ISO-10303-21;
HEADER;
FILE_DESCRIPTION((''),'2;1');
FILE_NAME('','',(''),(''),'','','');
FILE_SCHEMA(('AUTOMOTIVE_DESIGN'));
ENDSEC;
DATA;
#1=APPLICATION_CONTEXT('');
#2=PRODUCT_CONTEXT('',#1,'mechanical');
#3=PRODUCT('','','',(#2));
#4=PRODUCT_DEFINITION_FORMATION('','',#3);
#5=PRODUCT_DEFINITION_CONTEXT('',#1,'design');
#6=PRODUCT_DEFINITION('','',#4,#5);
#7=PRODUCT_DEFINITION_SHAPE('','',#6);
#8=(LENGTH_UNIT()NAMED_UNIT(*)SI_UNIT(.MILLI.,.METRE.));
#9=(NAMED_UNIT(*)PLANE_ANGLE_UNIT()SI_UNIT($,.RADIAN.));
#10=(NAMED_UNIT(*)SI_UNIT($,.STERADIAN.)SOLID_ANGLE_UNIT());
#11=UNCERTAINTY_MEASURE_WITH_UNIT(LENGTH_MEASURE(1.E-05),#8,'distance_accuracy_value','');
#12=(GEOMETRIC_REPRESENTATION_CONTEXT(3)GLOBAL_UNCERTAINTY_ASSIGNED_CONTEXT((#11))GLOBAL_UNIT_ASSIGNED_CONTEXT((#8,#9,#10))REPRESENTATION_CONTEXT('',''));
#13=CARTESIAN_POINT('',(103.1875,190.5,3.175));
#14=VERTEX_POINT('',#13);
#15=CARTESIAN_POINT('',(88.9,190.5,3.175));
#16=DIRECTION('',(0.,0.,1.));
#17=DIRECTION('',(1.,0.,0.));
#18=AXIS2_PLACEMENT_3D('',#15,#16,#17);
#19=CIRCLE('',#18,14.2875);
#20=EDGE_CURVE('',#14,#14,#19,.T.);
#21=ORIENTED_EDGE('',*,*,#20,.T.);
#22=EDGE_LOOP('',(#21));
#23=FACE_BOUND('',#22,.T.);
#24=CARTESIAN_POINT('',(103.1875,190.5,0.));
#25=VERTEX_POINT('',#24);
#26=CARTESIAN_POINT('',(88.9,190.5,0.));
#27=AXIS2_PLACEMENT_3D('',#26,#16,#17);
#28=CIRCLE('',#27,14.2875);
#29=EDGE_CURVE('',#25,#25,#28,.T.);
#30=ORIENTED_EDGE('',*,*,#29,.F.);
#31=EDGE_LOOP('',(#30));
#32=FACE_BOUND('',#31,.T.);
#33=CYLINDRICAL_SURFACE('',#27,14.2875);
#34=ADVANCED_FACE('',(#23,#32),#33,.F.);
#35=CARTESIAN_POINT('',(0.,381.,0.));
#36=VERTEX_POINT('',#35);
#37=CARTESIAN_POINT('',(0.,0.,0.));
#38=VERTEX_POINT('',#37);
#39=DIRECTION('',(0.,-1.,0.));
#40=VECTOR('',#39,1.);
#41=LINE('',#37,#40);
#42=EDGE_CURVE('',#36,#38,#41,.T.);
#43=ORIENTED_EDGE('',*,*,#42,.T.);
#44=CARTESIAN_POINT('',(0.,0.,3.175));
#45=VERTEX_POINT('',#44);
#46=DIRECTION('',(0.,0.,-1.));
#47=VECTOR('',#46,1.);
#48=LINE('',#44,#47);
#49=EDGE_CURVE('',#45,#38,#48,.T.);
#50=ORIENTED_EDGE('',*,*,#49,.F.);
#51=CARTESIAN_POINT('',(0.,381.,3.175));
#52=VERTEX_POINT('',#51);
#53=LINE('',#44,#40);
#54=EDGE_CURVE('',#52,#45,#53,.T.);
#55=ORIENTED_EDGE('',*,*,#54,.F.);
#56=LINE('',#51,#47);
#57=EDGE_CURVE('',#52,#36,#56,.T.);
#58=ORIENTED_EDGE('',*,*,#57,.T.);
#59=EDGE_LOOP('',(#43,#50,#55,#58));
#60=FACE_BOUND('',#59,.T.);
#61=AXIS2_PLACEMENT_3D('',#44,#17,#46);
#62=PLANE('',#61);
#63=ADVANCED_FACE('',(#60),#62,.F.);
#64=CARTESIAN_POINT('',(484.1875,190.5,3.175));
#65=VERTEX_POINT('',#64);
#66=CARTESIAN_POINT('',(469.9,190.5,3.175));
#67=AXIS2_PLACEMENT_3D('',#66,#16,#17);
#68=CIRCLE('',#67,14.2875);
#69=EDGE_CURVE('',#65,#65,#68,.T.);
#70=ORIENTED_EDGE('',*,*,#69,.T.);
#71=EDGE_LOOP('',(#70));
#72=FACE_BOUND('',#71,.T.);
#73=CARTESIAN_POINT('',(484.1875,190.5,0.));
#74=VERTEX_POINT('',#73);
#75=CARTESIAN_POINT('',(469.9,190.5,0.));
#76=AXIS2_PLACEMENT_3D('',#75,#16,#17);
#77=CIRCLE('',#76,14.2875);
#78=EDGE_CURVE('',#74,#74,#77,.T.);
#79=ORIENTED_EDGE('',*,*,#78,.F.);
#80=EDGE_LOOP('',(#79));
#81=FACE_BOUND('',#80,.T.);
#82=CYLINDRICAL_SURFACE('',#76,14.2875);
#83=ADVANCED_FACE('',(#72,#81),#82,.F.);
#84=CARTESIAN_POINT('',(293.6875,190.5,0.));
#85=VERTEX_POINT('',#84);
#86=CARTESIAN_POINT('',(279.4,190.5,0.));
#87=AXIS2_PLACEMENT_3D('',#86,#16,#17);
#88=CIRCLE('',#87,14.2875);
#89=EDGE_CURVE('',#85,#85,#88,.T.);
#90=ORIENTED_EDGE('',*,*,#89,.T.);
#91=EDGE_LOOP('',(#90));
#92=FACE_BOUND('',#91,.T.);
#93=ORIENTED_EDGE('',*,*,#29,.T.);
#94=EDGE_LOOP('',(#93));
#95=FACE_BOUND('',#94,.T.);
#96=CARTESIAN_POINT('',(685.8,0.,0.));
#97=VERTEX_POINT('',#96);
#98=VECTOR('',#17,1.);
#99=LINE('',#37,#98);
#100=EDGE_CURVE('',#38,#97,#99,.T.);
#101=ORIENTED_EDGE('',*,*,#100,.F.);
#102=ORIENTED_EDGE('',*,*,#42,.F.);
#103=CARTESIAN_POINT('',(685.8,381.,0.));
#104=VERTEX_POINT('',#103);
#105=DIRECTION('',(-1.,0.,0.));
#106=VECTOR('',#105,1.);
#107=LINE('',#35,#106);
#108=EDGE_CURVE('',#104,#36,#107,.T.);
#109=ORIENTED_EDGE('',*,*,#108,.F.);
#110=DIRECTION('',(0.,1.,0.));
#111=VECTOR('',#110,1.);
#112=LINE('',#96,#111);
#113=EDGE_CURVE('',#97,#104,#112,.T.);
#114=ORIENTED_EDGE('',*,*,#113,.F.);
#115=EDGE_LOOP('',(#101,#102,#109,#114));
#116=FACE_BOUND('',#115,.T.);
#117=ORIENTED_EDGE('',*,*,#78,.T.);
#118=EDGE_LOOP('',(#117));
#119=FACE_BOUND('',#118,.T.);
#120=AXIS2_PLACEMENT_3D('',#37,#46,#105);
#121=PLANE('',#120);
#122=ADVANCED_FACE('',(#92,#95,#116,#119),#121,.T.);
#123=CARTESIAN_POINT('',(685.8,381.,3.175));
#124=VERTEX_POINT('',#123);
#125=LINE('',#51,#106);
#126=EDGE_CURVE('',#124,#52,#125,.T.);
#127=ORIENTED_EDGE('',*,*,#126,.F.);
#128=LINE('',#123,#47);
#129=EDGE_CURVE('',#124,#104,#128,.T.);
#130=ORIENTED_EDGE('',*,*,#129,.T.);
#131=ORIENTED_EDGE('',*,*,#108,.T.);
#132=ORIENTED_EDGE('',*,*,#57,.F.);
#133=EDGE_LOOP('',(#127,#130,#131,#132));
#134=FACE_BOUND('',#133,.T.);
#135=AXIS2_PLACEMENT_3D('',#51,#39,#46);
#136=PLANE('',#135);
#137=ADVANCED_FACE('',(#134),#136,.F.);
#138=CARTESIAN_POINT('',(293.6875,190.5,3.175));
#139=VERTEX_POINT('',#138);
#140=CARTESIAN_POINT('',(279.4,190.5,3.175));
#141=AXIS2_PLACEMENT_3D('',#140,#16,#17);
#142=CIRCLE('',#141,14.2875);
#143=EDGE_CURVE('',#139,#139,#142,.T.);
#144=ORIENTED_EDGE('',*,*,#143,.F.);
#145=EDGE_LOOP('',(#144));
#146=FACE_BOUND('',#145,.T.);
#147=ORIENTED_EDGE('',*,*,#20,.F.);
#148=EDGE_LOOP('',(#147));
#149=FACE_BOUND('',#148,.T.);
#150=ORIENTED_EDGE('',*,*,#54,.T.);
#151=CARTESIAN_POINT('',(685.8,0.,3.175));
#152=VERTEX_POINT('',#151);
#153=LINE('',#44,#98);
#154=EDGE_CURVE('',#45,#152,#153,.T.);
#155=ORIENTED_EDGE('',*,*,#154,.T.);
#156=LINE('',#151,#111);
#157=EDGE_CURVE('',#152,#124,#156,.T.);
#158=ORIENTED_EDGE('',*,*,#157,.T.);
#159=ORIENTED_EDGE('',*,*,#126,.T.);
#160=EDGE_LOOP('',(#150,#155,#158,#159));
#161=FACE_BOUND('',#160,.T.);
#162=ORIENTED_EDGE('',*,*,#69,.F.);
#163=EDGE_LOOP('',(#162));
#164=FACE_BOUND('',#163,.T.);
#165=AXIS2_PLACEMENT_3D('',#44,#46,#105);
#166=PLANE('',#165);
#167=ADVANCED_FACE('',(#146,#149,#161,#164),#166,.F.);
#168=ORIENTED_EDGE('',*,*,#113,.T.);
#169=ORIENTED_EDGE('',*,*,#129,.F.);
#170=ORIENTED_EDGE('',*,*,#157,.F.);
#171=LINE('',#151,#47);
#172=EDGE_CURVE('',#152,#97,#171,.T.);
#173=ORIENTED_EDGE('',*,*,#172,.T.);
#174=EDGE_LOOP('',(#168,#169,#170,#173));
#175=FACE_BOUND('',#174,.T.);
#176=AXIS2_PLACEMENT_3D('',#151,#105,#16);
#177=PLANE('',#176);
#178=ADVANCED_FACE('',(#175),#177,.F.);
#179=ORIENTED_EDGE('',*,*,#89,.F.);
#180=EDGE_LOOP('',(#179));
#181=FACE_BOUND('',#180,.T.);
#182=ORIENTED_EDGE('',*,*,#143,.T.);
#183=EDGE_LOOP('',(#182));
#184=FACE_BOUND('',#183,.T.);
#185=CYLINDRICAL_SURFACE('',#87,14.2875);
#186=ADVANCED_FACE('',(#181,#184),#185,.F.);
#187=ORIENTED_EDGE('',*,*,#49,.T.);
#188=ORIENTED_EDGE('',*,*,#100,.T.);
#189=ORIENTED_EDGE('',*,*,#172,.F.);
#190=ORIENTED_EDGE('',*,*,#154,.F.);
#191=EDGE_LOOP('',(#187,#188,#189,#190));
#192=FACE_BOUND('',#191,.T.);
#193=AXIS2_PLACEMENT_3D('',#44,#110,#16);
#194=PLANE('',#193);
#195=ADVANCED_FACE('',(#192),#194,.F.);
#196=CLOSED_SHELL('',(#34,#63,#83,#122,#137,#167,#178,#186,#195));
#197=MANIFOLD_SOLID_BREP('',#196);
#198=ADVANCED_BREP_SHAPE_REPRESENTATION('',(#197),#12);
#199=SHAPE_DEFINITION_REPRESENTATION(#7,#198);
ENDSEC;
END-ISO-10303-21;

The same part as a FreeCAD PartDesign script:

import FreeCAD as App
import Part
import Sketcher

V = App.Vector
Q = App.Units.Quantity


def add_polygon(sketch, points):
    """Adds a closed chain of lines whose ends are joined by coincident constraints."""
    first, n = sketch.GeometryCount, len(points)
    for a, b in zip(points, points[1:] + points[:1]):
        sketch.addGeometry(Part.LineSegment(App.Vector(*a, 0), App.Vector(*b, 0)), False)
    for i in range(n):
        sketch.addConstraint(Sketcher.Constraint("Coincident", first + i, 2, first + (i + 1) % n, 1))

doc = App.newDocument("Part")
params = doc.addObject("Spreadsheet::Sheet", "Params")
for row, (alias, value) in enumerate([
    ("sketch1_width", "27 in"),
    ("sketch1_height", "15 in"),
    ("pad1_length", "0.125 in"),
    ("sketch2_diameter", "1.125 in"),
], start=1):
    params.set(f"A{row}", alias)
    params.set(f"B{row}", "=" + value)
    params.setAlias(f"B{row}", alias)

body = doc.addObject("PartDesign::Body", "Body")

sketch1 = doc.addObject("Sketcher::SketchObject", "Sketch")
body.addObject(sketch1)
sketch1.AttachmentSupport = (doc.XY_Plane, [""])
sketch1.MapMode = "FlatFace"
add_polygon(sketch1, [(0, 381), (0, 0), (686, 0), (686, 381)])
sketch1.addConstraint([
    Sketcher.Constraint("Vertical", 0),
    Sketcher.Constraint("Horizontal", 1),
    Sketcher.Constraint("Vertical", 2),
    Sketcher.Constraint("Horizontal", 3),
    Sketcher.Constraint("Coincident", 0, 2, -1, 1),
    Sketcher.Constraint("DistanceX", 1, 1, 1, 2, Q("27 in")),
    Sketcher.Constraint("DistanceY", 0, 2, 0, 1, Q("15 in")),
])
sketch1.setExpression("Constraints[9]", "Params.sketch1_width")
sketch1.setExpression("Constraints[10]", "Params.sketch1_height")
pad1 = doc.addObject("PartDesign::Pad", "Pad")
body.addObject(pad1)
pad1.Profile = sketch1
pad1.setExpression("Length", "Params.pad1_length")

sketch2 = doc.addObject("Sketcher::SketchObject", "Sketch001")
body.addObject(sketch2)
sketch2.AttachmentSupport = (doc.XY_Plane, [""])
sketch2.MapMode = "FlatFace"
sketch2.AttachmentOffset = App.Placement(V(0, 0, 0.125 * 25.4), App.Rotation())
sketch2.addGeometry([
    Part.Circle(V(470, 190, 0), V(0, 0, 1), 14),
    Part.Circle(V(89, 190, 0), V(0, 0, 1), 14),
    Part.Circle(V(279, 190, 0), V(0, 0, 1), 14),
], False)
sketch2.addConstraint([
    Sketcher.Constraint("Equal", 0, 1),
    Sketcher.Constraint("Equal", 1, 2),
    Sketcher.Constraint("Horizontal", 0, 3, 1, 3),
    Sketcher.Constraint("Horizontal", 1, 3, 2, 3),
    Sketcher.Constraint("Diameter", 0, Q("1.125 in")),
    Sketcher.Constraint("DistanceX", -1, 1, 2, 3, Q("11 in")),
    Sketcher.Constraint("DistanceX", 1, 3, 0, 3, Q("15 in")),
    Sketcher.Constraint("DistanceX", -1, 1, 0, 3, Q("18.5 in")),
    Sketcher.Constraint("DistanceY", -1, 1, 0, 3, Q("7.5 in")),
])
sketch2.setExpression("Constraints[4]", "Params.sketch2_diameter")
pocket1 = doc.addObject("PartDesign::Pocket", "Pocket")
body.addObject(pocket1)
pocket1.Profile = sketch2
pocket1.Type = "ThroughAll"

doc.recompute()
